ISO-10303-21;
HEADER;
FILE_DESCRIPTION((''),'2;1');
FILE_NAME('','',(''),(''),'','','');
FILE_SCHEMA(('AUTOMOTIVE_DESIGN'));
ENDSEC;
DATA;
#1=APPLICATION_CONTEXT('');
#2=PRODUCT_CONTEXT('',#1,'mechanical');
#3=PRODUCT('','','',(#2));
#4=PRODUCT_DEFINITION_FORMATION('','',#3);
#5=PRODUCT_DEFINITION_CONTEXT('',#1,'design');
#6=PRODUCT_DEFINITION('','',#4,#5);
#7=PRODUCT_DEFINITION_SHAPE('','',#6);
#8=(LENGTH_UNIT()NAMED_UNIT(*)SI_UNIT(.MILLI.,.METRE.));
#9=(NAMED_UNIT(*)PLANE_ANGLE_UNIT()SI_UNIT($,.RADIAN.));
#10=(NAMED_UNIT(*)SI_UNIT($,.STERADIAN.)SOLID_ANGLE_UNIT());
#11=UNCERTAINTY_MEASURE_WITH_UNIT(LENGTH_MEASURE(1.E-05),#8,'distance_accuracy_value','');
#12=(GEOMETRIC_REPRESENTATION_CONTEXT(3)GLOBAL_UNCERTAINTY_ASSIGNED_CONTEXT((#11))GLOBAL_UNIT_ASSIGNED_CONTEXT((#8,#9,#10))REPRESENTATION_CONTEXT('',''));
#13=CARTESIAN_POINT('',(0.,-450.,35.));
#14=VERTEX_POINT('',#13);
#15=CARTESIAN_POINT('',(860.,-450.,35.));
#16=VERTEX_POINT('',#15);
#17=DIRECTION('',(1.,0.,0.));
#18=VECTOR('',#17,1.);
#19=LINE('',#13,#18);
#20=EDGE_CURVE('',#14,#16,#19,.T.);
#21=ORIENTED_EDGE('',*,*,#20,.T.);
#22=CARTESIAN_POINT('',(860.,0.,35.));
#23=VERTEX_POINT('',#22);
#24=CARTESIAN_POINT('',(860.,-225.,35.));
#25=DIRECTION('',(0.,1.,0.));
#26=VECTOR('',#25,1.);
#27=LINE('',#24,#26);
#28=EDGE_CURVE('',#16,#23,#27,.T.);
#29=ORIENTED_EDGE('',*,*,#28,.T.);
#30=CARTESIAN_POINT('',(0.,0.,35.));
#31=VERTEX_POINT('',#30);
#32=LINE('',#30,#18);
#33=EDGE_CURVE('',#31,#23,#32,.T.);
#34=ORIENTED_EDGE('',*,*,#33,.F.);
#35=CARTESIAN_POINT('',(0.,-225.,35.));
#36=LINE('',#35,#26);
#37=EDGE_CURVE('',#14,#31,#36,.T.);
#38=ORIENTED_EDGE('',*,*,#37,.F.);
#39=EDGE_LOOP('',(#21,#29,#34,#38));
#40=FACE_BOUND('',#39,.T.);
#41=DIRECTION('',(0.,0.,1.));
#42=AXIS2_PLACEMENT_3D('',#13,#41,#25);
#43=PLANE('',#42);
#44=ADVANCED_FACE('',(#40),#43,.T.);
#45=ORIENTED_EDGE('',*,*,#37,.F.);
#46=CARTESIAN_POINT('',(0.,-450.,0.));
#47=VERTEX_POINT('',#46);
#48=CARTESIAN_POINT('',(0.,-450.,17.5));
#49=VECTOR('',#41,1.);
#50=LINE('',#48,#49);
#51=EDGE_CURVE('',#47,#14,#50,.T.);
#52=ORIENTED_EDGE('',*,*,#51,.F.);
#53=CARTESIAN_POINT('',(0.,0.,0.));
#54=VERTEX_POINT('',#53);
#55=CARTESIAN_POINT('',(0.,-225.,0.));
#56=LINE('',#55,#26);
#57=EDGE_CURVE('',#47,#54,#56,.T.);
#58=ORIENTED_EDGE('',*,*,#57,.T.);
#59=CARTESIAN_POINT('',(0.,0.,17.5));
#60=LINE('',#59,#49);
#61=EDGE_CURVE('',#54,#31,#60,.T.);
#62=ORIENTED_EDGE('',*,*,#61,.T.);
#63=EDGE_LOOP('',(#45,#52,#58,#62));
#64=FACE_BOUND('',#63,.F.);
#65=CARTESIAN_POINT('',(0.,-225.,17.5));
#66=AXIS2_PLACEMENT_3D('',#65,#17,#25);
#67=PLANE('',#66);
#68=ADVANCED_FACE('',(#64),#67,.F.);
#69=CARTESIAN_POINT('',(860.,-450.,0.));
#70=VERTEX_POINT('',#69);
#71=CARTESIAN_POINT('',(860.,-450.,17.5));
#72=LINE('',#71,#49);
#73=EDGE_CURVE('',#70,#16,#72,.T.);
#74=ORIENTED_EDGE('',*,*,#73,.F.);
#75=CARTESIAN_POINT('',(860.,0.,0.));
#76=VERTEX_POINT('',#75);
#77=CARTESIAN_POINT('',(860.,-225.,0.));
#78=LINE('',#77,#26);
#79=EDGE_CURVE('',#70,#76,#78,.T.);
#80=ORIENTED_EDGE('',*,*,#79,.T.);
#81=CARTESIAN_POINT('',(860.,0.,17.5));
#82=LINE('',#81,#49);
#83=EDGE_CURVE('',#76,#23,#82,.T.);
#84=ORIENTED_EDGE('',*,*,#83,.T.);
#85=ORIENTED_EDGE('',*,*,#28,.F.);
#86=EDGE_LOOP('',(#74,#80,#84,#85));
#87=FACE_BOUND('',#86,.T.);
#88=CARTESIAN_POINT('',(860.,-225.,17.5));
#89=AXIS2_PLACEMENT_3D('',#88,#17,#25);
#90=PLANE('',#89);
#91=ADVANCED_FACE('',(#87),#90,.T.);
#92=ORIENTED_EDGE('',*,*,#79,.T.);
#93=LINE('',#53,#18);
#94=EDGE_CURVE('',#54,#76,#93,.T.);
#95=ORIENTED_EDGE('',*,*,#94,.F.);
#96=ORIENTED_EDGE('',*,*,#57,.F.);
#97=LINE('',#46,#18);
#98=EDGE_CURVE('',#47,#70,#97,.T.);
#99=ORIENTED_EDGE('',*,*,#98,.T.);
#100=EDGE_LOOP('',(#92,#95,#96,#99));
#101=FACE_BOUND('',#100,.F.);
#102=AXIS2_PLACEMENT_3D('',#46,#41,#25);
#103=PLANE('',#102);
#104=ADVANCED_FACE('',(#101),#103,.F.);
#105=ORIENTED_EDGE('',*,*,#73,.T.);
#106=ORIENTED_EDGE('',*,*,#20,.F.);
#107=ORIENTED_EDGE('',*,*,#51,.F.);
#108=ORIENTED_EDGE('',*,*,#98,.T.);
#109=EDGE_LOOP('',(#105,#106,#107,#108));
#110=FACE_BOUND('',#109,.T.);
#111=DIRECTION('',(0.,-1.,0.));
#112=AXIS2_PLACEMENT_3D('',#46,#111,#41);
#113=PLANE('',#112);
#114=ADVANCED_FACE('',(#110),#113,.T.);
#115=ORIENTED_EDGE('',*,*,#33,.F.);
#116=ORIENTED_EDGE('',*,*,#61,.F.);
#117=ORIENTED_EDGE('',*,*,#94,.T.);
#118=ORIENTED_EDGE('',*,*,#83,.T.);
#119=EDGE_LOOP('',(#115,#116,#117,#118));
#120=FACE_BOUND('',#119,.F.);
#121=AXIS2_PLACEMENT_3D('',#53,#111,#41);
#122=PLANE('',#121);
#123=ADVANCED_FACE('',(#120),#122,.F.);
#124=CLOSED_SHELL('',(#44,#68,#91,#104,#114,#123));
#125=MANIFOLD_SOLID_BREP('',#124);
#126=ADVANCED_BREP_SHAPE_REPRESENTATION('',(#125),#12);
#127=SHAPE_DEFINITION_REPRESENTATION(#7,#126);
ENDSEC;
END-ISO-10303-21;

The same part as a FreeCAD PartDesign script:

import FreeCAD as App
import Part
import Sketcher

doc = App.newDocument("Part")
params = doc.addObject("Spreadsheet::Sheet", "Params")
for row, (alias, value) in enumerate([
    ("sketch1_width", "450 mm"),
    ("sketch1_height", "35 mm"),
    ("pad1_length", "860 mm"),
], start=1):
    params.set(f"A{row}", alias)
    params.set(f"B{row}", "=" + value)
    params.setAlias(f"B{row}", alias)

body = doc.addObject("PartDesign::Body", "Body")

# Sketch on YZ plane
sketch1 = doc.addObject("Sketcher::SketchObject", "Sketch")
body.addObject(sketch1)
sketch1.AttachmentSupport = (doc.YZ_Plane, [""])
sketch1.MapMode = "FlatFace"
sketch1.addGeometry(Part.LineSegment(App.Vector(-450, 35, 0), App.Vector(-450, 0, 0)), False)
sketch1.addGeometry(Part.LineSegment(App.Vector(-450, 0, 0), App.Vector(0, 0, 0)), False)
sketch1.addGeometry(Part.LineSegment(App.Vector(0, 0, 0), App.Vector(0, 35, 0)), False)
sketch1.addGeometry(Part.LineSegment(App.Vector(0, 35, 0), App.Vector(-450, 35, 0)), False)
sketch1.addConstraint(Sketcher.Constraint("Coincident", 0, 2, 1, 1))
sketch1.addConstraint(Sketcher.Constraint("Coincident", 1, 2, 2, 1))
sketch1.addConstraint(Sketcher.Constraint("Coincident", 2, 2, 3, 1))
sketch1.addConstraint(Sketcher.Constraint("Coincident", 3, 2, 0, 1))
sketch1.addConstraint(Sketcher.Constraint("Vertical", 0))
sketch1.addConstraint(Sketcher.Constraint("Horizontal", 1))
sketch1.addConstraint(Sketcher.Constraint("Vertical", 2))
sketch1.addConstraint(Sketcher.Constraint("Horizontal", 3))
sketch1.addConstraint(Sketcher.Constraint("Coincident", 1, 2, -1, 1))
sketch1.addConstraint(Sketcher.Constraint("DistanceX", 1, 1, 1, 2, 450.0))
sketch1.addConstraint(Sketcher.Constraint("DistanceY", 0, 2, 0, 1, 35.0))
sketch1.setExpression("Constraints[9]", "Params.sketch1_width")
sketch1.setExpression("Constraints[10]", "Params.sketch1_height")
pad1 = doc.addObject("PartDesign::Pad", "Pad")
body.addObject(pad1)
pad1.Profile = sketch1
pad1.setExpression("Length", "Params.pad1_length")

doc.recompute()
